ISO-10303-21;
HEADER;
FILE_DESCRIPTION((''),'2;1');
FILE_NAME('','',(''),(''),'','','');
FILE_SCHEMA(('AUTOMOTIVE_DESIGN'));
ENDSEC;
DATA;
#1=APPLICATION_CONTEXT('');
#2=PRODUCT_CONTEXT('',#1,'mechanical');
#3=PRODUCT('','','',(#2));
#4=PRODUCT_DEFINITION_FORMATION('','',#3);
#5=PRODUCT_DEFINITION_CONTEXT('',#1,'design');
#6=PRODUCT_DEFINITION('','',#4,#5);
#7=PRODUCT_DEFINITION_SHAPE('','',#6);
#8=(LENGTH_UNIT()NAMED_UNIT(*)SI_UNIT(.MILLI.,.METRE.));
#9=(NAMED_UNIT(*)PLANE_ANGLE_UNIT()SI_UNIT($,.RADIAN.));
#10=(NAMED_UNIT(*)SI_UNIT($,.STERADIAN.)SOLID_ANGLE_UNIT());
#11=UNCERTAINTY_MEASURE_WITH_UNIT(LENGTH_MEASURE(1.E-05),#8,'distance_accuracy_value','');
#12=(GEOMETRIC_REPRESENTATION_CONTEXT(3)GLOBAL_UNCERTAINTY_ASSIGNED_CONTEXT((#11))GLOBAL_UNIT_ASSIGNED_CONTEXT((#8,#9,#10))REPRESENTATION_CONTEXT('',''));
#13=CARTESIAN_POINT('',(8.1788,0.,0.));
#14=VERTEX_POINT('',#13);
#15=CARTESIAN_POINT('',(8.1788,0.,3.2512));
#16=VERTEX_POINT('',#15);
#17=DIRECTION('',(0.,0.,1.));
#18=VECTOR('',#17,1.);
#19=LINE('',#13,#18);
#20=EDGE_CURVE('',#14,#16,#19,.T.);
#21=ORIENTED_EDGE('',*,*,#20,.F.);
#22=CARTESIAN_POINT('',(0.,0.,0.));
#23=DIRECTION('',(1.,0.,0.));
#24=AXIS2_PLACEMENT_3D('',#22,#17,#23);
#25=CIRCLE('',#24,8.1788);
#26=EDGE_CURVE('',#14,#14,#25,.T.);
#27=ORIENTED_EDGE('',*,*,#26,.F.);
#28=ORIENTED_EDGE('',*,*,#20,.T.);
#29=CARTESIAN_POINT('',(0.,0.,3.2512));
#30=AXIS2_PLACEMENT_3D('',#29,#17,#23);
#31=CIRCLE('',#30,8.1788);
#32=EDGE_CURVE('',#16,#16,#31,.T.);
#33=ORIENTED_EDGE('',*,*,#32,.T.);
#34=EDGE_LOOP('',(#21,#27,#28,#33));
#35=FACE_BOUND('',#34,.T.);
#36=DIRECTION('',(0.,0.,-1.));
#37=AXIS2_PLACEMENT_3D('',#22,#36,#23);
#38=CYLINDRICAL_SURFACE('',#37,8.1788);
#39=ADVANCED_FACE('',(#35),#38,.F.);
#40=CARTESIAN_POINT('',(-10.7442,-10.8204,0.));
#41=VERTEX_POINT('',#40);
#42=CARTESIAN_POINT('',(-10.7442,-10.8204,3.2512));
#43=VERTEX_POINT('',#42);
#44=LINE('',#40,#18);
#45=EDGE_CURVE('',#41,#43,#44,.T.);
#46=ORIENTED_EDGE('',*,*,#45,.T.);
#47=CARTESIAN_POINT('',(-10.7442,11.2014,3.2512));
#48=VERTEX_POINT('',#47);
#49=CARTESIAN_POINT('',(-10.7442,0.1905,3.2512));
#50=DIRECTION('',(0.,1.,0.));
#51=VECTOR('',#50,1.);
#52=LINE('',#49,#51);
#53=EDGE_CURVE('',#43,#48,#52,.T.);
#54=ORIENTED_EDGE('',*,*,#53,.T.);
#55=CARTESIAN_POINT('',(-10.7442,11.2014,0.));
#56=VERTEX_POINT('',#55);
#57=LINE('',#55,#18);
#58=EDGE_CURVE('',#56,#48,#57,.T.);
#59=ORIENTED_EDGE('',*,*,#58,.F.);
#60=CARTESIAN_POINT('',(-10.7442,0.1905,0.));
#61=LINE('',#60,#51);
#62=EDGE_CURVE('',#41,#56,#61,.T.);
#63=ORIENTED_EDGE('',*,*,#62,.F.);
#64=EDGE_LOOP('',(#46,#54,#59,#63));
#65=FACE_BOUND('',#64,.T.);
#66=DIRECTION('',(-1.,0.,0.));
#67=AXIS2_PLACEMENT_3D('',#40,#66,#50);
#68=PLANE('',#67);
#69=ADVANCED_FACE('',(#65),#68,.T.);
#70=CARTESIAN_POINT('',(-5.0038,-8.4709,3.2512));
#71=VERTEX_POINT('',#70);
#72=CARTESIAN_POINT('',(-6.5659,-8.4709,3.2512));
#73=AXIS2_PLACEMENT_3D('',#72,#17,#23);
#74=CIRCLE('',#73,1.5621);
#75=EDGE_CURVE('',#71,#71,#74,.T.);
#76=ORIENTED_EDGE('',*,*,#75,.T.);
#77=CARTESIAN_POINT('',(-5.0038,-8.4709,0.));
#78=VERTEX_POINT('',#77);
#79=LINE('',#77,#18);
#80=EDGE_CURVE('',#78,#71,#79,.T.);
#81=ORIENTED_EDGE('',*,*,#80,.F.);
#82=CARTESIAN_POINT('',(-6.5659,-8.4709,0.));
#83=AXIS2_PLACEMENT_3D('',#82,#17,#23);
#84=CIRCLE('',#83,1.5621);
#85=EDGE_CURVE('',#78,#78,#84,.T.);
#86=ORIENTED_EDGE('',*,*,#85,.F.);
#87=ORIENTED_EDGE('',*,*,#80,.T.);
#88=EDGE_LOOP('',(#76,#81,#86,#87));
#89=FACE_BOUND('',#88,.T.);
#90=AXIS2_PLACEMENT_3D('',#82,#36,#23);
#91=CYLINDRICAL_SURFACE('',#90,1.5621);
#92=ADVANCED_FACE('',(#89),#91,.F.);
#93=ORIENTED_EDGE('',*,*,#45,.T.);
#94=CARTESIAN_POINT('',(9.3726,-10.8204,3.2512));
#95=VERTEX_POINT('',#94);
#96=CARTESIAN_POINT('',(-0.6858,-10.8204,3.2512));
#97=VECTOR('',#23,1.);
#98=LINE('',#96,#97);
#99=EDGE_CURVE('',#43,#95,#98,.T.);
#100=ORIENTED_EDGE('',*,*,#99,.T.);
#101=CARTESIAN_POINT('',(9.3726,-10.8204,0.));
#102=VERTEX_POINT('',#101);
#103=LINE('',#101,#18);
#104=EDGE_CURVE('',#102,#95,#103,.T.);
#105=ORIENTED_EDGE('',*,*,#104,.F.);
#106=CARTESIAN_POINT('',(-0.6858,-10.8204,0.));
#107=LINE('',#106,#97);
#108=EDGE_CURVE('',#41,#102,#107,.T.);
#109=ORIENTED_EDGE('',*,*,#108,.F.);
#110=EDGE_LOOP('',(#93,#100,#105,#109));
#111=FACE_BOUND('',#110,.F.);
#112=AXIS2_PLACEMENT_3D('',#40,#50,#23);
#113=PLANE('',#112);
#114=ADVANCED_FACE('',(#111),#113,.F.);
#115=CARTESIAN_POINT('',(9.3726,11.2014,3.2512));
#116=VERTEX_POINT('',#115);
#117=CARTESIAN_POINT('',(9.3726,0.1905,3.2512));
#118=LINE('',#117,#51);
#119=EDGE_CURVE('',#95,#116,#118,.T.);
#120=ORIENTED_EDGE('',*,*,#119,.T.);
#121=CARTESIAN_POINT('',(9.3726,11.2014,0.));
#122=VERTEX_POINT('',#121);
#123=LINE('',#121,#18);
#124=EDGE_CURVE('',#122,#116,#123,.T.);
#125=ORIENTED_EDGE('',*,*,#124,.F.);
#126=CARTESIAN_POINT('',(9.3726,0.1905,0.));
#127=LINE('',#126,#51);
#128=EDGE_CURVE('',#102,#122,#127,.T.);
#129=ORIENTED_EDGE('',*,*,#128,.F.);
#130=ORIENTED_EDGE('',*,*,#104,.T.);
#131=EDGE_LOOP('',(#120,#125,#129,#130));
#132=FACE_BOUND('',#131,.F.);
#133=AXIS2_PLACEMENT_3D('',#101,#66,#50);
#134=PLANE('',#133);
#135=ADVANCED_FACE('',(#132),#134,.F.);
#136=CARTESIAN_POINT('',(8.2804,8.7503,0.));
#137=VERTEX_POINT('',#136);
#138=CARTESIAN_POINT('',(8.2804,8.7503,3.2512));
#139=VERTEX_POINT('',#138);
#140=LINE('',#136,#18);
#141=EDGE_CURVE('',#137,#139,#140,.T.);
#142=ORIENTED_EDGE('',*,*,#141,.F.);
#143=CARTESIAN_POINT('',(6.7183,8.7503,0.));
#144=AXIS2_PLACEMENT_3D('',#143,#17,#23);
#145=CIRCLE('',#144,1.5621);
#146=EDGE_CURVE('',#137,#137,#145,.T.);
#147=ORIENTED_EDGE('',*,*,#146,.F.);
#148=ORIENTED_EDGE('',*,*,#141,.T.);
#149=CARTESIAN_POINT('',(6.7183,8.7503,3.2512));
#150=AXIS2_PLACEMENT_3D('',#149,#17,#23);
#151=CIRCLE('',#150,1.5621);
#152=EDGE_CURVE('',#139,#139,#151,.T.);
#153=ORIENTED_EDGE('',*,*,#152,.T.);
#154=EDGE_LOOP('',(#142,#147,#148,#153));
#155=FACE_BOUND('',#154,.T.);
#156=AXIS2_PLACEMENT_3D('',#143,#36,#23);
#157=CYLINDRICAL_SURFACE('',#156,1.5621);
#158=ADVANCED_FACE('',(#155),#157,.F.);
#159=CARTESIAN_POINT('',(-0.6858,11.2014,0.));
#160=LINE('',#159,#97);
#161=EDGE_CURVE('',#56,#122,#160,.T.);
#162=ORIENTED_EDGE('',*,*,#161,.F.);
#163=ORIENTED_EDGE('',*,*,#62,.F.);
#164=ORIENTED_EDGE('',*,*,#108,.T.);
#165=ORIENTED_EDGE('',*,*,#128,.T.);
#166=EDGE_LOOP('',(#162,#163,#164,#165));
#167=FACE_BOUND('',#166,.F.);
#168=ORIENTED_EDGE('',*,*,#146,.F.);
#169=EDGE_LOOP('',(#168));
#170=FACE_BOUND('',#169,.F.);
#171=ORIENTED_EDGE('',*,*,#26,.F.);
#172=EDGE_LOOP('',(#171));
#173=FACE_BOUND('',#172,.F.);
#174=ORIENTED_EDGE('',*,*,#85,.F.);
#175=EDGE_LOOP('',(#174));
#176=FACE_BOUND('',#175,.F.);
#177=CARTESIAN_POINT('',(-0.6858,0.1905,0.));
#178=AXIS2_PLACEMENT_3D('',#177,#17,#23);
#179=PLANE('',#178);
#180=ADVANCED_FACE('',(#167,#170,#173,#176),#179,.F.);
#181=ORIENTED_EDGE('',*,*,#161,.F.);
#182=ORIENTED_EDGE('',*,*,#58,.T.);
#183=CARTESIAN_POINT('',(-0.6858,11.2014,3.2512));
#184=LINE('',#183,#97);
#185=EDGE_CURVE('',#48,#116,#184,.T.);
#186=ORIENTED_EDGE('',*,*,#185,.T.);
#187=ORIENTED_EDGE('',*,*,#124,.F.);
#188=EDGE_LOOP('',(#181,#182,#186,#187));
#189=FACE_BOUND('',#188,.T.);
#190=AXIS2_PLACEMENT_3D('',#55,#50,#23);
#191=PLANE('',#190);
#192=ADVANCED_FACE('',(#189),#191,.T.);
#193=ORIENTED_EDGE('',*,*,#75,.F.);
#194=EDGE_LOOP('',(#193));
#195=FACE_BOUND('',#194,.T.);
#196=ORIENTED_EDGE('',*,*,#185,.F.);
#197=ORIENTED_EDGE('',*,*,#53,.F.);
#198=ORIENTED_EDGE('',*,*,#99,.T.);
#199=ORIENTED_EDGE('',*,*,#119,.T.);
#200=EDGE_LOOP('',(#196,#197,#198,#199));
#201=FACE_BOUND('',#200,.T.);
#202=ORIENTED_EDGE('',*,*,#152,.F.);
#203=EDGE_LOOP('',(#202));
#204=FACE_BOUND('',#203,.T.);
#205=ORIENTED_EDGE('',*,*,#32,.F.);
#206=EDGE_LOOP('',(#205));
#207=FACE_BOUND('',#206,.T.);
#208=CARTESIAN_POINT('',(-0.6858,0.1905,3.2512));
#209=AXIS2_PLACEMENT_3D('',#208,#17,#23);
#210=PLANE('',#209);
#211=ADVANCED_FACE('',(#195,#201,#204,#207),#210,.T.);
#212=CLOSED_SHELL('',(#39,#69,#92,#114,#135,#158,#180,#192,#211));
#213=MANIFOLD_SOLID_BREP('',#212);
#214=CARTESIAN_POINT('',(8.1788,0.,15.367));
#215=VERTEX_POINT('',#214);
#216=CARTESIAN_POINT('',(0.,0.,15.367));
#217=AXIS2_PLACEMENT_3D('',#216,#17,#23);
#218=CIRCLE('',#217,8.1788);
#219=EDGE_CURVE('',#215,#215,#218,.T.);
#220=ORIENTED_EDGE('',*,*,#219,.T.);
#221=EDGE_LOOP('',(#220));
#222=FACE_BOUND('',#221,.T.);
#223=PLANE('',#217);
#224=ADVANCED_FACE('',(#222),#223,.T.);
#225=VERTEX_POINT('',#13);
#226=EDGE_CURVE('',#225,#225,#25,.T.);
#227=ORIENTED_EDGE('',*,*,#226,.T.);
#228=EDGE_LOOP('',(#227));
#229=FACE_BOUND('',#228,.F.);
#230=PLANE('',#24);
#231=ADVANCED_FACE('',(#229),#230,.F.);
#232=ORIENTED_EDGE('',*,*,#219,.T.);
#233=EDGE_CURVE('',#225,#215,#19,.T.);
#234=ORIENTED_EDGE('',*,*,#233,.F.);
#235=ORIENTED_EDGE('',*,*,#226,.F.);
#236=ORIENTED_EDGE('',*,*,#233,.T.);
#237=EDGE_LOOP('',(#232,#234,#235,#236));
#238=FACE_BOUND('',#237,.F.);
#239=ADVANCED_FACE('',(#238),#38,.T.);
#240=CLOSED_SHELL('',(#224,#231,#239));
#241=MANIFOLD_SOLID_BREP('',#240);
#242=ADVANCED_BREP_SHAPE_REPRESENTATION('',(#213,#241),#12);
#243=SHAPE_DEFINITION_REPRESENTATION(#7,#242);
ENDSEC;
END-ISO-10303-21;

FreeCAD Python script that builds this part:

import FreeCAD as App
import Part
import Sketcher
from FreeCAD import Vector
Q = App.Units.Quantity


def add_polygon(sketch, points):
    """Adds a closed chain of lines whose ends are joined by coincident constraints."""
    first, n = sketch.GeometryCount, len(points)
    for a, b in zip(points, points[1:] + points[:1]):
        sketch.addGeometry(Part.LineSegment(App.Vector(*a, 0), App.Vector(*b, 0)), False)
    for i in range(n):
        sketch.addConstraint(Sketcher.Constraint("Coincident", first + i, 2, first + (i + 1) % n, 1))

doc = App.newDocument("Part")
body = doc.addObject("PartDesign::Body", "Body")

# Sketch on XY plane
sketch1 = body.newObject("Sketcher::SketchObject", "Sketch")
sketch1.AttachmentSupport = (doc.getObject("XY_Plane"), [""])
sketch1.MapMode = "FlatFace"
sketch1.addGeometry(Part.Circle(Vector(0, 0, 0), Vector(0, 0, 1), 8.1788), False)
sketch1.addConstraint([
    Sketcher.Constraint("Coincident", 0, 3, -1, 1),
    Sketcher.Constraint("Diameter", 0, Q("0.644 in")),
])
pad1 = body.newObject("PartDesign::Pad", "Pad")
pad1.Profile = sketch1
pad1.Length = Q("0.605 in")

# Sketch on XY plane
sketch2 = body.newObject("Sketcher::SketchObject", "Sketch001")
sketch2.AttachmentSupport = (doc.getObject("XY_Plane"), [""])
sketch2.MapMode = "FlatFace"
sketch2.addGeometry(Part.Circle(Vector(6.7183, 8.7503, 0), Vector(0, 0, 1), 1.5621), False)
sketch2.addConstraint([
    Sketcher.Constraint("Diameter", 0, Q("0.123 in")),
    Sketcher.Constraint("DistanceX", -1, 1, 0, 3, Q("0.2645 in")),
    Sketcher.Constraint("DistanceY", -1, 1, 0, 3, Q("0.3445 in")),
])
pocket1 = body.newObject("PartDesign::Pocket", "Pocket")
pocket1.Profile = sketch2
pocket1.Length = Q("0.064 in")
body2 = doc.addObject("PartDesign::Body", "Body001")

# Sketch on XY plane
sketch3 = body2.newObject("Sketcher::SketchObject", "Sketch002")
sketch3.AttachmentSupport = (doc.getObject("XY_Plane001"), [""])
sketch3.MapMode = "FlatFace"
add_polygon(sketch3, [(-10.7442, 11.2014), (-10.7442, -10.8204), (9.3726, -10.8204), (9.3726, 11.2014)])  # lines 0-3
sketch3.addGeometry(Part.Circle(Vector(0, 0, 0), Vector(0, 0, 1), 8.1788), False)  # 4
sketch3.addConstraint([
    Sketcher.Constraint("Vertical", 0),
    Sketcher.Constraint("Horizontal", 1),
    Sketcher.Constraint("Vertical", 2),
    Sketcher.Constraint("Horizontal", 3),
    Sketcher.Constraint("Coincident", 4, 3, -1, 1),
    Sketcher.Constraint("Diameter", 4, Q("0.644 in")),
    Sketcher.Constraint("DistanceX", 1, 1, 1, 2, Q("0.792 in")),
    Sketcher.Constraint("DistanceY", 0, 2, 0, 1, Q("0.867 in")),
    Sketcher.Constraint("DistanceX", 0, 2, -1, 1, Q("0.423 in")),
    Sketcher.Constraint("DistanceY", 0, 2, -1, 1, Q("0.426 in")),
])
pad2 = body2.newObject("PartDesign::Pad", "Pad001")
pad2.Profile = sketch3
pad2.Length = Q("0.128 in")

# Sketch on XY plane
sketch4 = body2.newObject("Sketcher::SketchObject", "Sketch003")
sketch4.AttachmentSupport = (doc.getObject("XY_Plane001"), [""])
sketch4.MapMode = "FlatFace"
sketch4.addGeometry(Part.Circle(Vector(-6.5659, -8.4709, 0), Vector(0, 0, 1), 1.5621), False)
sketch4.addConstraint([
    Sketcher.Constraint("Diameter", 0, Q("0.123 in")),
    Sketcher.Constraint("DistanceX", 0, 3, -1, 1, Q("0.2585 in")),
    Sketcher.Constraint("DistanceY", 0, 3, -1, 1, Q("0.3335 in")),
])
pocket2 = body2.newObject("PartDesign::Pocket", "Pocket001")
pocket2.Profile = sketch4
pocket2.Length = Q("0.128 in")
pocket2.Reversed = True

# Sketch on XY plane
sketch5 = body2.newObject("Sketcher::SketchObject", "Sketch004")
sketch5.AttachmentSupport = (doc.getObject("XY_Plane001"), [""])
sketch5.MapMode = "FlatFace"
sketch5.addGeometry(Part.Circle(Vector(6.7183, 8.7503, 0), Vector(0, 0, 1), 1.5621), False)
sketch5.addConstraint([
    Sketcher.Constraint("Diameter", 0, Q("0.123 in")),
    Sketcher.Constraint("DistanceX", -1, 1, 0, 3, Q("0.2645 in")),
    Sketcher.Constraint("DistanceY", -1, 1, 0, 3, Q("0.3445 in")),
])
pocket3 = body2.newObject("PartDesign::Pocket", "Pocket002")
pocket3.Profile = sketch5
pocket3.Length = Q("0.128 in")
pocket3.Reversed = True

doc.recompute()
